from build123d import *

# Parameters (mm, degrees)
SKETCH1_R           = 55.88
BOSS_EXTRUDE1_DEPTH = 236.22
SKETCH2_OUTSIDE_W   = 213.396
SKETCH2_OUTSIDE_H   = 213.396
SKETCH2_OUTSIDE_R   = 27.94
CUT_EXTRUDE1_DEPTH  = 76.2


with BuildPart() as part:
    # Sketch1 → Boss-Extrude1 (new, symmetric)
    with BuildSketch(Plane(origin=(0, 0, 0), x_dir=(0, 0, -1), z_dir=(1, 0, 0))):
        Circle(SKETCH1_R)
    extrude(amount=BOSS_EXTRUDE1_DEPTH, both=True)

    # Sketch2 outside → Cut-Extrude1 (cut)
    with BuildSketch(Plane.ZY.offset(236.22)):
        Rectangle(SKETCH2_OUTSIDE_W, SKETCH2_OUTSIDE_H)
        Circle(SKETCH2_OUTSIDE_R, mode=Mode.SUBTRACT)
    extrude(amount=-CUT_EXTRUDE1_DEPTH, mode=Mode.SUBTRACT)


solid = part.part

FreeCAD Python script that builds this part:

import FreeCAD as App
import Part
import Sketcher
from FreeCAD import Vector
Q = App.Units.Quantity


def add_polygon(sketch, points):
    """Adds a closed chain of lines whose ends are joined by coincident constraints."""
    first, n = sketch.GeometryCount, len(points)
    for a, b in zip(points, points[1:] + points[:1]):
        sketch.addGeometry(Part.LineSegment(App.Vector(*a, 0), App.Vector(*b, 0)), False)
    for i in range(n):
        sketch.addConstraint(Sketcher.Constraint("Coincident", first + i, 2, first + (i + 1) % n, 1))

doc = App.newDocument("Part")
params = doc.addObject("Spreadsheet::Sheet", "Params")
for row, (alias, value) in enumerate([
    ("sketch1_diameter", "4.4 in"),
    ("pad1_length", "18.6 in"),
    ("sketch2_diameter", "2.2 in"),
    ("pocket1_length", "3 in"),
], start=1):
    params.set(f"A{row}", alias)
    params.set(f"B{row}", "=" + value)
    params.setAlias(f"B{row}", alias)

body = doc.addObject("PartDesign::Body", "Body")

# Sketch on YZ plane
sketch1 = body.newObject("Sketcher::SketchObject", "Sketch")
sketch1.AttachmentSupport = (doc.getObject("YZ_Plane"), [""])
sketch1.MapMode = "FlatFace"
sketch1.addGeometry(Part.Circle(Vector(0, 0, 0), Vector(0, 0, 1), 56), False)
sketch1.addConstraint([
    Sketcher.Constraint("Coincident", 0, 3, -1, 1),
    Sketcher.Constraint("Diameter", 0, Q("4.4 in")),
])
sketch1.setExpression("Constraints[1]", "Params.sketch1_diameter")
pad1 = body.newObject("PartDesign::Pad", "Pad")
pad1.Profile = sketch1
pad1.setExpression("Length", "Params.pad1_length")
pad1.Midplane = True

# Sketch on YZ plane
sketch2 = body.newObject("Sketcher::SketchObject", "Sketch001")
sketch2.AttachmentSupport = (doc.getObject("YZ_Plane"), [""])
sketch2.MapMode = "FlatFace"
sketch2.AttachmentOffset = App.Placement(Vector(0, 0, -9.3 * 25.4), App.Rotation())
add_polygon(sketch2, [(107, -107), (-107, -107), (-107, 107), (107, 107)])  # lines 0-3
sketch2.addGeometry(Part.Circle(Vector(0, 0, 0), Vector(0, 0, 1), 28), False)  # 4
sketch2.addConstraint([
    Sketcher.Constraint("Horizontal", 0),
    Sketcher.Constraint("Vertical", 1),
    Sketcher.Constraint("Horizontal", 2),
    Sketcher.Constraint("Vertical", 3),
    Sketcher.Constraint("Coincident", 4, 3, -1, 1),
    Sketcher.Constraint("Symmetric", 0, 2, 2, 2, -1, 1),
    Sketcher.Constraint("Equal", 2, 1),
    Sketcher.Constraint("Diameter", 4, Q("2.2 in")),
    Sketcher.Constraint("DistanceX", 0, 2, 0, 1, 213.396),
])
sketch2.setExpression("Constraints[11]", "Params.sketch2_diameter")
pocket1 = body.newObject("PartDesign::Pocket", "Pocket")
pocket1.Profile = sketch2
pocket1.setExpression("Length", "Params.pocket1_length")
pocket1.Reversed = True

doc.recompute()
